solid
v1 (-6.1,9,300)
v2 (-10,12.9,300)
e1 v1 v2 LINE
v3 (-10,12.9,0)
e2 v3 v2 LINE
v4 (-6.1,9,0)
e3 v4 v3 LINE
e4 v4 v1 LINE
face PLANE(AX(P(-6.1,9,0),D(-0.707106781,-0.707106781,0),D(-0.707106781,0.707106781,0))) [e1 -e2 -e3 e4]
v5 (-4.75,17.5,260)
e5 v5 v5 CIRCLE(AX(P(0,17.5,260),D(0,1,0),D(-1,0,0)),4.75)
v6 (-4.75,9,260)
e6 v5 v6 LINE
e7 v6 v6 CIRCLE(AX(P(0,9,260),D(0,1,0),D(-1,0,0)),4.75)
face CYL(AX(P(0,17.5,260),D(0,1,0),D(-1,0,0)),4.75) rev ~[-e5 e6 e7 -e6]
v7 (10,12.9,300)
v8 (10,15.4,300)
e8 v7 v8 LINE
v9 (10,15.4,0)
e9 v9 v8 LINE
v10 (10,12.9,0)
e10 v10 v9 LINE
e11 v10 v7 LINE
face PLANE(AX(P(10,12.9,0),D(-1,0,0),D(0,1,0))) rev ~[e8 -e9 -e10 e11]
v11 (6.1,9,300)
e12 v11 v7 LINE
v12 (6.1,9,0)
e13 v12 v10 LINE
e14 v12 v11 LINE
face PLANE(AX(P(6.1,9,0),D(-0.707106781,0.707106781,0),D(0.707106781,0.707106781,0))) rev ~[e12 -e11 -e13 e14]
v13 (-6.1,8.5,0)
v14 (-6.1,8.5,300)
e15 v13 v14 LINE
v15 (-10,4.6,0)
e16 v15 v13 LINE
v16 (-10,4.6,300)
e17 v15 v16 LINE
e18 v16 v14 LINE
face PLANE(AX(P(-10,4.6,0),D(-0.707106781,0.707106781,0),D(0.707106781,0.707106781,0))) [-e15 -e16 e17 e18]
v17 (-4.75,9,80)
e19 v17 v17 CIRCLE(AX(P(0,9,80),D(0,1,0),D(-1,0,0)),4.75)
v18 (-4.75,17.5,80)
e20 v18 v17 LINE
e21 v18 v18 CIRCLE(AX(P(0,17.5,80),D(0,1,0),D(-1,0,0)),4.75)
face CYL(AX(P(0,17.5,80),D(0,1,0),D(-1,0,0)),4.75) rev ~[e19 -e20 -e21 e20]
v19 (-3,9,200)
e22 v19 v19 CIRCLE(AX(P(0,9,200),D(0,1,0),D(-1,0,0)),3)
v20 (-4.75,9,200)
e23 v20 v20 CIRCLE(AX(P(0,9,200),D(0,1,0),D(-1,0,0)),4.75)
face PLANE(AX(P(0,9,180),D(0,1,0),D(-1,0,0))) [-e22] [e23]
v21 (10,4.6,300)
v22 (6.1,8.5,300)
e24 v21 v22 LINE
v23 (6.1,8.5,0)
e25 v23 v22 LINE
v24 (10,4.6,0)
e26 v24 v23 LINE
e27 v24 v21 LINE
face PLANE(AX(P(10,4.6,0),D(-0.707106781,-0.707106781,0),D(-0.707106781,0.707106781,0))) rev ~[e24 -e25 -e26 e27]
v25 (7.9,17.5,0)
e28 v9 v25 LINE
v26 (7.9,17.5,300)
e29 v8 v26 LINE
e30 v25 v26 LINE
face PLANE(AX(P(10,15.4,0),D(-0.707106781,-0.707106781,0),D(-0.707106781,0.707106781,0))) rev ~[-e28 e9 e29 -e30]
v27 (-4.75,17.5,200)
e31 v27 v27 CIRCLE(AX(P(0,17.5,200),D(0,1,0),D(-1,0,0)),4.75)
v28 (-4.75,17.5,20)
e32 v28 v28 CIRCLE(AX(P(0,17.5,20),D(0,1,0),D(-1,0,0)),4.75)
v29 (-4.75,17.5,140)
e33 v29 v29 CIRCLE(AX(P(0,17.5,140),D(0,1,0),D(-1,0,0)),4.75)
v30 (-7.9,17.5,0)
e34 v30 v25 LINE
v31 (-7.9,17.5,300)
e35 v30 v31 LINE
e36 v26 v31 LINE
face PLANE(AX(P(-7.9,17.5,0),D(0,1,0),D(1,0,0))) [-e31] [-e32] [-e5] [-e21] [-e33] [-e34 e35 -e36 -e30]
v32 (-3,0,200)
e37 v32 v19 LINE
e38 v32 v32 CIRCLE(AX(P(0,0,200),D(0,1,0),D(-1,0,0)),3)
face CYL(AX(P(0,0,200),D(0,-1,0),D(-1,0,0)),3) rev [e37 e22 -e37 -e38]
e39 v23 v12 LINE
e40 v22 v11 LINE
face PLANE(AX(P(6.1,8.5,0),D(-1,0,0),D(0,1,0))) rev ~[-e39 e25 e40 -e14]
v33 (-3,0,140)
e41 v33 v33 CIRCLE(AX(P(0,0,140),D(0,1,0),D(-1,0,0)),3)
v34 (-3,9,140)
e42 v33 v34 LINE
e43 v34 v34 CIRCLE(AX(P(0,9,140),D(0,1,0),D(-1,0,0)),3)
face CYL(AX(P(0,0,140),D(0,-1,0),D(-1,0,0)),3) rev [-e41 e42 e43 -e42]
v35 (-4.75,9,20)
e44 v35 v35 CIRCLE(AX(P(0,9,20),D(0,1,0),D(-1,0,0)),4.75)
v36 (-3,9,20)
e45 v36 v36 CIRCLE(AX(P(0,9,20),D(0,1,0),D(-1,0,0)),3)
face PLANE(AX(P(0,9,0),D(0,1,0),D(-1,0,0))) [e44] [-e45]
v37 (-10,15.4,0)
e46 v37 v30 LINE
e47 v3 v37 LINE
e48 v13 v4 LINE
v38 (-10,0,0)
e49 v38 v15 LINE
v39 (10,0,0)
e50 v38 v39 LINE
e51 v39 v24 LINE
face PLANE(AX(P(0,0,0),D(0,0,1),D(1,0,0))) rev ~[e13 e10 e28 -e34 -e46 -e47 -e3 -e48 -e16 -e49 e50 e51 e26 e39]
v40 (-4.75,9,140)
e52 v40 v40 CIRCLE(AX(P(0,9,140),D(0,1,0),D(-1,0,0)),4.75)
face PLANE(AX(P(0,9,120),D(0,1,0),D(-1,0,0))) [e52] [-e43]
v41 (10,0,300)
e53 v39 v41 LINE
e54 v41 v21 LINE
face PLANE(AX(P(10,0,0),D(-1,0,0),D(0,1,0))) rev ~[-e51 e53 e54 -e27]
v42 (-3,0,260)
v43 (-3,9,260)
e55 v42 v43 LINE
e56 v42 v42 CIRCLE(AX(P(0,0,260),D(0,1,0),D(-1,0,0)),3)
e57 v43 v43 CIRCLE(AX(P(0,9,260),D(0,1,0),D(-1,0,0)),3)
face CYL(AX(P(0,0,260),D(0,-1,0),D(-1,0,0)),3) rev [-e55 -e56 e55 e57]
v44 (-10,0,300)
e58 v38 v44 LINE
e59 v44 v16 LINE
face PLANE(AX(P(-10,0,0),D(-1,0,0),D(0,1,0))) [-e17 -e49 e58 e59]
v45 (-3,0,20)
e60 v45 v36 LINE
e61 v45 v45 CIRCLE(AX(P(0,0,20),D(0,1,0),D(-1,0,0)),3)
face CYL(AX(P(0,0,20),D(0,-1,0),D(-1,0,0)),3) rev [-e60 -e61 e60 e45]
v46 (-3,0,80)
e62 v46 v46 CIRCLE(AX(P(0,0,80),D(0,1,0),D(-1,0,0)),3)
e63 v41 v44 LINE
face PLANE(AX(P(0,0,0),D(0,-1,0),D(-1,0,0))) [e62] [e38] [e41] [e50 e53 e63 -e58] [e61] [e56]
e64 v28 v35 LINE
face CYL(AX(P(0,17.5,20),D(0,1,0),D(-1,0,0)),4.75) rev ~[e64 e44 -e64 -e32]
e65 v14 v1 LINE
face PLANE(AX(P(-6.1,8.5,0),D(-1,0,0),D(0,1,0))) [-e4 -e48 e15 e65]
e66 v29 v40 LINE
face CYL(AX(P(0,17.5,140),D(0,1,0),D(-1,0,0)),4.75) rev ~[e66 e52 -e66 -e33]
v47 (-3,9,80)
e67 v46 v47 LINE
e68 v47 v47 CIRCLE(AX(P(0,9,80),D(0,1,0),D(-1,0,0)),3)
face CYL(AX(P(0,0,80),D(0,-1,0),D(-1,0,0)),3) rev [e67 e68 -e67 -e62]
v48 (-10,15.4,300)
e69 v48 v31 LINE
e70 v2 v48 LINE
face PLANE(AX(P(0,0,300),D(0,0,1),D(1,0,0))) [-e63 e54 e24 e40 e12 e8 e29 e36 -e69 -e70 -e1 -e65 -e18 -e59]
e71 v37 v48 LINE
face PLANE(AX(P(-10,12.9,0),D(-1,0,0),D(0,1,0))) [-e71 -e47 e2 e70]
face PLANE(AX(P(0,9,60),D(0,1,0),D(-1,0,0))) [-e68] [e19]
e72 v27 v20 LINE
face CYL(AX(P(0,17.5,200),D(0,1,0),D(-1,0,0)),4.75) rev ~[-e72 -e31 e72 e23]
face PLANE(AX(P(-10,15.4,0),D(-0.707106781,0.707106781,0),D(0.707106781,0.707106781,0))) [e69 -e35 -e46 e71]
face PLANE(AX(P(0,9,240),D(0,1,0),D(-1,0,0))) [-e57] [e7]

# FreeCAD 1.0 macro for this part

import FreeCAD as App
import Part
import Sketcher
from FreeCAD import Vector

doc = App.newDocument("Part")
body = doc.addObject("PartDesign::Body", "Body")

# Sketch on XY plane
sketch1 = body.newObject("Sketcher::SketchObject", "Sketch")
sketch1.AttachmentSupport = (doc.getObject("XY_Plane"), [""])
sketch1.MapMode = "FlatFace"
sketch1.addGeometry(Part.LineSegment(Vector(-10, 0, 0), Vector(10, 0, 0)), False)
sketch1.addGeometry(Part.LineSegment(Vector(10, 0, 0), Vector(10, 4.6, 0)), False)
sketch1.addGeometry(Part.LineSegment(Vector(10, 4.6, 0), Vector(6.1, 8.5, 0)), False)
sketch1.addGeometry(Part.LineSegment(Vector(6.1, 8.5, 0), Vector(6.1, 9, 0)), False)
sketch1.addGeometry(Part.LineSegment(Vector(6.1, 9, 0), Vector(10, 12.9, 0)), False)
sketch1.addGeometry(Part.LineSegment(Vector(10, 12.9, 0), Vector(10, 15.4, 0)), False)
sketch1.addGeometry(Part.LineSegment(Vector(10, 15.4, 0), Vector(7.9, 17.5, 0)), False)
sketch1.addGeometry(Part.LineSegment(Vector(7.9, 17.5, 0), Vector(-7.9, 17.5, 0)), False)
sketch1.addGeometry(Part.LineSegment(Vector(-7.9, 17.5, 0), Vector(-10, 15.4, 0)), False)
sketch1.addGeometry(Part.LineSegment(Vector(-10, 15.4, 0), Vector(-10, 12.9, 0)), False)
sketch1.addGeometry(Part.LineSegment(Vector(-10, 12.9, 0), Vector(-6.1, 9, 0)), False)
sketch1.addGeometry(Part.LineSegment(Vector(-6.1, 9, 0), Vector(-6.1, 8.5, 0)), False)
sketch1.addGeometry(Part.LineSegment(Vector(-6.1, 8.5, 0), Vector(-10, 4.6, 0)), False)
sketch1.addGeometry(Part.LineSegment(Vector(-10, 4.6, 0), Vector(-10, 0, 0)), False)
sketch1.addConstraint(Sketcher.Constraint("Coincident", 0, 2, 1, 1))
sketch1.addConstraint(Sketcher.Constraint("Coincident", 1, 2, 2, 1))
sketch1.addConstraint(Sketcher.Constraint("Coincident", 2, 2, 3, 1))
sketch1.addConstraint(Sketcher.Constraint("Coincident", 3, 2, 4, 1))
sketch1.addConstraint(Sketcher.Constraint("Coincident", 4, 2, 5, 1))
sketch1.addConstraint(Sketcher.Constraint("Coincident", 5, 2, 6, 1))
sketch1.addConstraint(Sketcher.Constraint("Coincident", 6, 2, 7, 1))
sketch1.addConstraint(Sketcher.Constraint("Coincident", 7, 2, 8, 1))
sketch1.addConstraint(Sketcher.Constraint("Coincident", 8, 2, 9, 1))
sketch1.addConstraint(Sketcher.Constraint("Coincident", 9, 2, 10, 1))
sketch1.addConstraint(Sketcher.Constraint("Coincident", 10, 2, 11, 1))
sketch1.addConstraint(Sketcher.Constraint("Coincident", 11, 2, 12, 1))
sketch1.addConstraint(Sketcher.Constraint("Coincident", 12, 2, 13, 1))
sketch1.addConstraint(Sketcher.Constraint("Coincident", 13, 2, 0, 1))
sketch1.addConstraint(Sketcher.Constraint("Horizontal", 0))
sketch1.addConstraint(Sketcher.Constraint("Vertical", 1))
sketch1.addConstraint(Sketcher.Constraint("Vertical", 3))
sketch1.addConstraint(Sketcher.Constraint("Vertical", 5))
sketch1.addConstraint(Sketcher.Constraint("Horizontal", 7))
sketch1.addConstraint(Sketcher.Constraint("Vertical", 9))
sketch1.addConstraint(Sketcher.Constraint("Vertical", 11))
sketch1.addConstraint(Sketcher.Constraint("Vertical", 13))
sketch1.addConstraint(Sketcher.Constraint("Symmetric", 0, 2, 13, 2, -1, 1))
sketch1.addConstraint(Sketcher.Constraint("Symmetric", 5, 2, 8, 2, -2))
sketch1.addConstraint(Sketcher.Constraint("Symmetric", 3, 2, 10, 2, -2))
sketch1.addConstraint(Sketcher.Constraint("Perpendicular", 2, 4))
sketch1.addConstraint(Sketcher.Constraint("Perpendicular", 4, 6))
sketch1.addConstraint(Sketcher.Constraint("Perpendicular", 6, 8))
sketch1.addConstraint(Sketcher.Constraint("Perpendicular", 8, 10))
sketch1.addConstraint(Sketcher.Constraint("Perpendicular", 10, 12))
sketch1.addConstraint(Sketcher.Constraint("Horizontal", 4, 2, 9, 2))
sketch1.addConstraint(Sketcher.Constraint("Horizontal", 2, 2, 11, 2))
sketch1.addConstraint(Sketcher.Constraint("Vertical", 1, 2, 4, 2))
sketch1.addConstraint(Sketcher.Constraint("DistanceX", 0, 1, 0, 2, 20.0))
sketch1.addConstraint(Sketcher.Constraint("DistanceY", 1, 1, 1, 2, 4.6))
sketch1.addConstraint(Sketcher.Constraint("DistanceY", 3, 1, 3, 2, 0.5))
sketch1.addConstraint(Sketcher.Constraint("DistanceY", 5, 1, 5, 2, 2.5))
sketch1.addConstraint(Sketcher.Constraint("DistanceY", -1, 1, 2, 2, 8.5))
sketch1.addConstraint(Sketcher.Constraint("DistanceY", -1, 1, 6, 2, 17.5))
pad1 = body.newObject("PartDesign::Pad", "Pad")
pad1.Profile = sketch1
pad1.Length = 300

# Sketch on XZ plane
sketch2 = body.newObject("Sketcher::SketchObject", "Sketch001")
sketch2.AttachmentSupport = (doc.getObject("XZ_Plane"), [""])
sketch2.MapMode = "FlatFace"
sketch2.addGeometry(Part.Circle(Vector(0, 20, 0), Vector(0, 0, 1), 3), False)
sketch2.addConstraint(Sketcher.Constraint("PointOnObject", 0, 3, -2))
sketch2.addConstraint(Sketcher.Constraint("Diameter", 0, 6.0))
sketch2.addConstraint(Sketcher.Constraint("DistanceY", -1, 1, 0, 3, 20.0))
pocket1 = body.newObject("PartDesign::Pocket", "Pocket")
pocket1.Profile = sketch2
pocket1.Type = "ThroughAll"

# Sketch on XZ plane
sketch3 = body.newObject("Sketcher::SketchObject", "Sketch002")
sketch3.AttachmentSupport = (doc.getObject("XZ_Plane"), [""])
sketch3.MapMode = "FlatFace"
sketch3.AttachmentOffset = App.Placement(Vector(0, 0, -17.5), App.Rotation())
sketch3.addGeometry(Part.Circle(Vector(0, 20, 0), Vector(0, 0, 1), 4.8), False)
sketch3.addGeometry(Part.Circle(Vector(0, 20, 0), Vector(0, 0, 1), 3), False)
sketch3.addConstraint(Sketcher.Constraint("Coincident", 1, 3, 0, 3))
sketch3.addConstraint(Sketcher.Constraint("PointOnObject", 0, 3, -2))
sketch3.addConstraint(Sketcher.Constraint("Diameter", 1, 6.0))
sketch3.addConstraint(Sketcher.Constraint("Diameter", 0, 9.5))
sketch3.addConstraint(Sketcher.Constraint("DistanceY", -1, 1, 0, 3, 20.0))
pocket2 = body.newObject("PartDesign::Pocket", "Pocket001")
pocket2.Profile = sketch3
pocket2.Length = 8.5
pocket2.Reversed = True
doc.recompute()

linearpattern = body.newObject("PartDesign::LinearPattern", "LinearPattern")
linearpattern.Originals = [pocket1, pocket2]
linearpattern.Direction = (doc.getObject("Z_Axis"), [""])
linearpattern.Mode = "offset"
linearpattern.Offset = 60
linearpattern.Occurrences = 9
body.Tip = linearpattern

doc.recompute()
